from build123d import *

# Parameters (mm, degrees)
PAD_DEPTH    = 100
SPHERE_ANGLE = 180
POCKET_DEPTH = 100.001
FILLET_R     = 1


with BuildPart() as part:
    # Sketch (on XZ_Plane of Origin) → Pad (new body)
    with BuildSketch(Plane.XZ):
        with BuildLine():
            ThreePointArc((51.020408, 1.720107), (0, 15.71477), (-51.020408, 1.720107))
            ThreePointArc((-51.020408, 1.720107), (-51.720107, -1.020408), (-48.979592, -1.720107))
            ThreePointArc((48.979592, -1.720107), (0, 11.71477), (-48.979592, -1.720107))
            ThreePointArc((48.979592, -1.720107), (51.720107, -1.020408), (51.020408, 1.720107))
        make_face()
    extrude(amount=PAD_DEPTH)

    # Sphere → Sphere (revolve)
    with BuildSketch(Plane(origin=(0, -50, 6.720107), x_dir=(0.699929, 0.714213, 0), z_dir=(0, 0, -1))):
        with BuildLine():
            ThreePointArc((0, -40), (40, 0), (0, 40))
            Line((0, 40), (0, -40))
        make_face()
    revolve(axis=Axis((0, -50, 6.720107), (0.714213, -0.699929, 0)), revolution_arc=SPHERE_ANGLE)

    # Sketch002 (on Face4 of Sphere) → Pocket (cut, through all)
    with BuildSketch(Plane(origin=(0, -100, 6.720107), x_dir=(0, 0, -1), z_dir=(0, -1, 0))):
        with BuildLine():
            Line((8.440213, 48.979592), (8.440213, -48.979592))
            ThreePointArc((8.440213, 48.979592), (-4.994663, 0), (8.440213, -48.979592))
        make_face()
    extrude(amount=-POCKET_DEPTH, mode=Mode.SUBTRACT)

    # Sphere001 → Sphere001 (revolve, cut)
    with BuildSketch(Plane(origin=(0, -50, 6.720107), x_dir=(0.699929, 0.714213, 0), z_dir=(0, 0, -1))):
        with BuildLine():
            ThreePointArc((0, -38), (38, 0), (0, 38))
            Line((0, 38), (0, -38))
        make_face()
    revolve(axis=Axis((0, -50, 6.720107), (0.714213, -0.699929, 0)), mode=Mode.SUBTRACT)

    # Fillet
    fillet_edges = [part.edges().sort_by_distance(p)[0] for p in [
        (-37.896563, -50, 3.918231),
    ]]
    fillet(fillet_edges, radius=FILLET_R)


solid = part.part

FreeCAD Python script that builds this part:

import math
import FreeCAD as App
import Part
import Sketcher


def edges_at(feature, points):
    """Names of the edges that pass closest to the given points."""
    edges = feature.Shape.Edges
    near = lambda p: min(range(len(edges)), key=lambda i: edges[i].distToShape(Part.Vertex(*p))[0])
    return sorted({f"Edge{near(p) + 1}" for p in points})

doc = App.newDocument("Part")
params = doc.addObject("Spreadsheet::Sheet", "Params")
for row, (alias, value) in enumerate([
    ("sketch1_radius", "100.000001 mm"),
    ("sketch1_radius2", "2 mm"),
    ("pad1_length", "100 mm"),
    ("sketch2_radius", "40 mm"),
    ("revolution_angle", "180 deg"),
    ("sketch4_radius", "38 mm"),
    ("groove_angle", "360 deg"),
    ("fillet_radius", "1 mm"),
], start=1):
    params.set(f"A{row}", alias)
    params.set(f"B{row}", "=" + value)
    params.setAlias(f"B{row}", alias)

body = doc.addObject("PartDesign::Body", "Body")

sketch1 = body.newObject("Sketcher::SketchObject", "Sketch")
sketch1.AttachmentSupport = (doc.getObject("XZ_Plane"), [""])
sketch1.MapMode = "FlatFace"
sketch1.addGeometry(Part.ArcOfCircle(Part.Circle(App.Vector(0, -84.3, 0), App.Vector(0, 0, 1), 100), math.radians(59), math.radians(121)), False)
sketch1.addGeometry(Part.ArcOfCircle(Part.Circle(App.Vector(-50, 0, 0), App.Vector(0, 0, 1), 2), math.radians(121), math.radians(301)), False)
sketch1.addGeometry(Part.ArcOfCircle(Part.Circle(App.Vector(0, -84.3, 0), App.Vector(0, 0, 1), 96), math.radians(59), math.radians(121)), False)
sketch1.addGeometry(Part.ArcOfCircle(Part.Circle(App.Vector(50, 0, 0), App.Vector(0, 0, 1), 2), math.radians(-121), math.radians(59)), False)
sketch1.addConstraint(Sketcher.Constraint("Tangent", 0, 2, 1, 1))
sketch1.addConstraint(Sketcher.Constraint("Tangent", 1, 2, 2, 2))
sketch1.addConstraint(Sketcher.Constraint("Tangent", 2, 1, 3, 1))
sketch1.addConstraint(Sketcher.Constraint("Tangent", 3, 2, 0, 1))
sketch1.addConstraint(Sketcher.Constraint("Coincident", 2, 3, 0, 3))
sketch1.addConstraint(Sketcher.Constraint("Symmetric", 1, 3, 3, 3, -1, 1))
sketch1.addConstraint(Sketcher.Constraint("PointOnObject", 0, 3, -2))
sketch1.addConstraint(Sketcher.Constraint("Radius", 0, 100.000001))
sketch1.addConstraint(Sketcher.Constraint("Radius", 1, 2.0))
sketch1.addConstraint(Sketcher.Constraint("DistanceX", 1, 3, -1, 1, 50.0))
sketch1.setExpression("Constraints[7]", "Params.sketch1_radius")
sketch1.setExpression("Constraints[8]", "Params.sketch1_radius2")
pad1 = body.newObject("PartDesign::Pad", "Pad")
pad1.Profile = sketch1
pad1.setExpression("Length", "Params.pad1_length")

sketch2 = body.newObject("Sketcher::SketchObject", "Sketch001")
sketch2.AttachmentSupport = (doc.getObject("XY_Plane"), [""])
sketch2.MapMode = "FlatFace"
sketch2.AttachmentOffset = App.Placement(App.Vector(0, 0, 6.720107), App.Rotation())
sketch2.addGeometry(Part.ArcOfCircle(Part.Circle(App.Vector(0, -50, 0), App.Vector(0, 0, 1), 40), math.radians(-44), math.radians(136)), False)
sketch2.addGeometry(Part.LineSegment(App.Vector(29, -78, 0), App.Vector(-29, -22, 0)), False)
sketch2.addGeometry(Part.LineSegment(App.Vector(-29, -22, 0), App.Vector(29, -78, 0)), True)
sketch2.addConstraint(Sketcher.Constraint("Coincident", 0, 1, 1, 1))
sketch2.addConstraint(Sketcher.Constraint("Coincident", 1, 2, 0, 2))
sketch2.addConstraint(Sketcher.Constraint("Coincident", 2, 1, 1, 2))
sketch2.addConstraint(Sketcher.Constraint("Coincident", 2, 2, 0, 1))
sketch2.addConstraint(Sketcher.Constraint("PointOnObject", 0, 3, -2))
sketch2.addConstraint(Sketcher.Constraint("Radius", 0, 40.0))
sketch2.addConstraint(Sketcher.Constraint("DistanceY", 0, 3, -1, 1, 50.0))
sketch2.addConstraint(Sketcher.Constraint("DistanceX", -1, 1, 0, 1, 28.568508))
sketch2.addConstraint(Sketcher.Constraint("DistanceX", 1, 2, -1, 1, 28.568508))
sketch2.setExpression("Constraints[5]", "Params.sketch2_radius")
revolution = body.newObject("PartDesign::Revolution", "Revolution")
revolution.Profile = sketch2
revolution.ReferenceAxis = (sketch2, ["Axis0"])
revolution.setExpression("Angle", "Params.revolution_angle")

sketch3 = body.newObject("Sketcher::SketchObject", "Sketch002")
sketch3.AttachmentSupport = (doc.getObject("XZ_Plane"), [""])
sketch3.MapMode = "FlatFace"
sketch3.AttachmentOffset = App.Placement(App.Vector(0, 0, 100), App.Rotation())
sketch3.addGeometry(Part.LineSegment(App.Vector(-49, -2, 0), App.Vector(49, -2, 0)), False)
sketch3.addGeometry(Part.ArcOfCircle(Part.Circle(App.Vector(0, -84, 0), App.Vector(0, 0, 1), 96), math.radians(59), math.radians(121)), False)
sketch3.addConstraint(Sketcher.Constraint("Coincident", 0, 1, 1, 2))
sketch3.addConstraint(Sketcher.Constraint("Coincident", 1, 1, 0, 2))
sketch3.addConstraint(Sketcher.Constraint("Horizontal", 0))
sketch3.addConstraint(Sketcher.Constraint("PointOnObject", 1, 3, -2))
sketch3.addConstraint(Sketcher.Constraint("Radius", 1, 96.000005))
sketch3.addConstraint(Sketcher.Constraint("DistanceX", 0, 1, 0, 2, 97.959184))
sketch3.addConstraint(Sketcher.Constraint("DistanceY", 1, 3, -1, 1, 84.285235))
pocket1 = body.newObject("PartDesign::Pocket", "Pocket")
pocket1.Profile = sketch3
pocket1.Type = "ThroughAll"

sketch4 = body.newObject("Sketcher::SketchObject", "Sketch003")
sketch4.AttachmentSupport = (doc.getObject("XY_Plane"), [""])
sketch4.MapMode = "FlatFace"
sketch4.AttachmentOffset = App.Placement(App.Vector(0, 0, 6.720107), App.Rotation())
sketch4.addGeometry(Part.ArcOfCircle(Part.Circle(App.Vector(0, -50, 0), App.Vector(0, 0, 1), 38), math.radians(-44), math.radians(136)), False)
sketch4.addGeometry(Part.LineSegment(App.Vector(27, -77, 0), App.Vector(-27, -23, 0)), False)
sketch4.addGeometry(Part.LineSegment(App.Vector(-27, -23, 0), App.Vector(27, -77, 0)), True)
sketch4.addConstraint(Sketcher.Constraint("Coincident", 0, 1, 1, 1))
sketch4.addConstraint(Sketcher.Constraint("Coincident", 1, 2, 0, 2))
sketch4.addConstraint(Sketcher.Constraint("Coincident", 2, 1, 1, 2))
sketch4.addConstraint(Sketcher.Constraint("Coincident", 2, 2, 0, 1))
sketch4.addConstraint(Sketcher.Constraint("PointOnObject", 0, 3, -2))
sketch4.addConstraint(Sketcher.Constraint("Radius", 0, 38.0))
sketch4.addConstraint(Sketcher.Constraint("DistanceY", 0, 3, -1, 1, 50.0))
sketch4.addConstraint(Sketcher.Constraint("DistanceY", 0, 1, -1, 1, 76.597291))
sketch4.addConstraint(Sketcher.Constraint("DistanceY", 1, 2, -1, 1, 23.402709))
sketch4.setExpression("Constraints[5]", "Params.sketch4_radius")
groove = body.newObject("PartDesign::Groove", "Groove")
groove.Profile = sketch4
groove.ReferenceAxis = (sketch4, ["Axis0"])
groove.setExpression("Angle", "Params.groove_angle")
doc.recompute()

fillet = body.newObject("PartDesign::Fillet", "Fillet")
fillet.Base = (groove, edges_at(groove, [(-37.897, -50, 3.918)]))
fillet.setExpression("Radius", "Params.fillet_radius")

doc.recompute()
